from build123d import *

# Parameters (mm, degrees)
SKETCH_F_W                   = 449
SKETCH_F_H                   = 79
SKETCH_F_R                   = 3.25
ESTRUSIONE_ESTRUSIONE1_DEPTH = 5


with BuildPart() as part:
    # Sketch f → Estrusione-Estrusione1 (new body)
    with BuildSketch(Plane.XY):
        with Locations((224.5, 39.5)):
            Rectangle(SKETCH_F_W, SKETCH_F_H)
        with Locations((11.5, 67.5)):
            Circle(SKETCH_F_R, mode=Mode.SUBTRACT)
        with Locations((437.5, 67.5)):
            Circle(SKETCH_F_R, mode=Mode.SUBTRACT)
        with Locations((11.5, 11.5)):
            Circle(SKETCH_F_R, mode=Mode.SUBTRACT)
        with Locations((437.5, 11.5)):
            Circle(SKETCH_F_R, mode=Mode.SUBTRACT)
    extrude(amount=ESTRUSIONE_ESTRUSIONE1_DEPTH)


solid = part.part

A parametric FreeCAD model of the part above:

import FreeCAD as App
import Part
import Sketcher

V = App.Vector


def add_polygon(sketch, points):
    """Adds a closed chain of lines whose ends are joined by coincident constraints."""
    first, n = sketch.GeometryCount, len(points)
    for a, b in zip(points, points[1:] + points[:1]):
        sketch.addGeometry(Part.LineSegment(App.Vector(*a, 0), App.Vector(*b, 0)), False)
    for i in range(n):
        sketch.addConstraint(Sketcher.Constraint("Coincident", first + i, 2, first + (i + 1) % n, 1))

doc = App.newDocument("Part")
params = doc.addObject("Spreadsheet::Sheet", "Params")
for row, (alias, value) in enumerate([
    ("sketch1_diameter", "6.5 mm"),
    ("sketch1_width", "449 mm"),
    ("sketch1_height", "79 mm"),
    ("pad1_length", "5 mm"),
], start=1):
    params.set(f"A{row}", alias)
    params.set(f"B{row}", "=" + value)
    params.setAlias(f"B{row}", alias)

body = doc.addObject("PartDesign::Body", "Body")

# Sketch on XY plane
sketch1 = body.newObject("Sketcher::SketchObject", "Sketch")
sketch1.AttachmentSupport = (doc.getObject("XY_Plane"), [""])
sketch1.MapMode = "FlatFace"
add_polygon(sketch1, [(0, 79), (0, 0), (449, 0), (449, 79)])  # lines 0-3
sketch1.addGeometry(Part.Circle(V(11.5, 11.5, 0), V(0, 0, 1), 3.2), False)  # 4
sketch1.addGeometry(Part.Circle(V(437.5, 11.5, 0), V(0, 0, 1), 3.2), False)  # 5
sketch1.addGeometry(Part.Circle(V(11.5, 67.5, 0), V(0, 0, 1), 3.2), False)  # 6
sketch1.addGeometry(Part.Circle(V(437.5, 67.5, 0), V(0, 0, 1), 3.2), False)  # 7
sketch1.addConstraint([
    Sketcher.Constraint("Vertical", 0),
    Sketcher.Constraint("Horizontal", 1),
    Sketcher.Constraint("Vertical", 2),
    Sketcher.Constraint("Horizontal", 3),
    Sketcher.Constraint("Coincident", 0, 2, -1, 1),
    Sketcher.Constraint("Equal", 4, 5),
    Sketcher.Constraint("Equal", 5, 6),
    Sketcher.Constraint("Equal", 6, 7),
    Sketcher.Constraint("Horizontal", 4, 3, 5, 3),
    Sketcher.Constraint("Horizontal", 6, 3, 7, 3),
    Sketcher.Constraint("Vertical", 4, 3, 6, 3),
    Sketcher.Constraint("Vertical", 5, 3, 7, 3),
    Sketcher.Constraint("Diameter", 4, 6.5),
    Sketcher.Constraint("DistanceX", 1, 1, 1, 2, 449.0),
    Sketcher.Constraint("DistanceY", 0, 2, 0, 1, 79.0),
    Sketcher.Constraint("DistanceX", 4, 3, 5, 3, 426.0),
    Sketcher.Constraint("DistanceY", 4, 3, 6, 3, 56.0),
    Sketcher.Constraint("DistanceX", -1, 1, 4, 3, 11.5),
    Sketcher.Constraint("DistanceY", -1, 1, 4, 3, 11.5),
])
sketch1.setExpression("Constraints[16]", "Params.sketch1_diameter")
sketch1.setExpression("Constraints[17]", "Params.sketch1_width")
sketch1.setExpression("Constraints[18]", "Params.sketch1_height")
pad1 = body.newObject("PartDesign::Pad", "Pad")
pad1.Profile = sketch1
pad1.setExpression("Length", "Params.pad1_length")

doc.recompute()
